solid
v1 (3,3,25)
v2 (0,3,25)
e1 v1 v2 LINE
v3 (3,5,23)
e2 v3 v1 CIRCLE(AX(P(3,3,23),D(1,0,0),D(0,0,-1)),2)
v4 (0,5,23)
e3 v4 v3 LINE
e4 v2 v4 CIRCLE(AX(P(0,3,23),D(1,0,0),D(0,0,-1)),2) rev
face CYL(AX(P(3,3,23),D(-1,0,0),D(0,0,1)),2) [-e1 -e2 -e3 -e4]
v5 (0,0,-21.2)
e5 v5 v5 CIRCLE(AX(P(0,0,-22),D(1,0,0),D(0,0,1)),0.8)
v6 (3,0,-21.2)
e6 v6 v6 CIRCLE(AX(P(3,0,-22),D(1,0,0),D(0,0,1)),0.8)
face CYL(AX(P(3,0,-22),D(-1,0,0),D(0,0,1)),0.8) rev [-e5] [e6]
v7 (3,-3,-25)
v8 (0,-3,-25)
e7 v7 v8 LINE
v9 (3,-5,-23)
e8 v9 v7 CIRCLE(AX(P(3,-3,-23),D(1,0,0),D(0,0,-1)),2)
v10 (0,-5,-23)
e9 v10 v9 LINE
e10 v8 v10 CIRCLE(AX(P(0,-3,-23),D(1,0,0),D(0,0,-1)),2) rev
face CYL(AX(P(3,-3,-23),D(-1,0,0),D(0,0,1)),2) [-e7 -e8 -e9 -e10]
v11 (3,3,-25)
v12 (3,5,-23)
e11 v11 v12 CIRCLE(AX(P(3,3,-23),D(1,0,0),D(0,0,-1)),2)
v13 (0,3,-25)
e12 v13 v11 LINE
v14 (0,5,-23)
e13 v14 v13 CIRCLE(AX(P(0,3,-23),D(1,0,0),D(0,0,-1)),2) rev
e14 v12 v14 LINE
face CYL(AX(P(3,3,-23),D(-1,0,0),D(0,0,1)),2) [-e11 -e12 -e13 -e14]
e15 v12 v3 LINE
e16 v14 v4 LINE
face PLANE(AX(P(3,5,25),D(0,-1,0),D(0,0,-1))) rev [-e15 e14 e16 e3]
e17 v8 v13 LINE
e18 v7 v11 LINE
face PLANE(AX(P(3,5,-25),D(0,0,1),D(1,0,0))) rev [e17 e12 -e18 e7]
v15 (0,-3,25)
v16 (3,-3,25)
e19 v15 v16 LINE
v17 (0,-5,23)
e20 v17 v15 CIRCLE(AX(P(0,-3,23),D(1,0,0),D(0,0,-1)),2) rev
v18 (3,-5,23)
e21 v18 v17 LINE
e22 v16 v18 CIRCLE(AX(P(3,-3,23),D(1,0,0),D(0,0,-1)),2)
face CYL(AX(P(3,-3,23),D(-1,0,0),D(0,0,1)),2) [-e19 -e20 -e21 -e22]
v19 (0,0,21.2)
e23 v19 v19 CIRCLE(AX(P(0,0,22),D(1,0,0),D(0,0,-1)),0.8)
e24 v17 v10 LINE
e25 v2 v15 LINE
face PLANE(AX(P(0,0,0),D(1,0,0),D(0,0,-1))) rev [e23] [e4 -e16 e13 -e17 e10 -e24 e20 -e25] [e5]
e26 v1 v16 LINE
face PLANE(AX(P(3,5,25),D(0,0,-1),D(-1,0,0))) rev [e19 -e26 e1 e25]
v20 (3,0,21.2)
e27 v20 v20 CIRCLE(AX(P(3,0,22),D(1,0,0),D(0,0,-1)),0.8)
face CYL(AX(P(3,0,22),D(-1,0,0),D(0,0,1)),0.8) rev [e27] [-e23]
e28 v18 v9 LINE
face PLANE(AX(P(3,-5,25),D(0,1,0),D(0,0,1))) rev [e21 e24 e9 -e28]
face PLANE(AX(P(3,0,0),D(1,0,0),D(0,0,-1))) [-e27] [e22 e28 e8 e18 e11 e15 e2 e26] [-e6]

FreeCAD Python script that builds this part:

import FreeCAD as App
import Part
import Sketcher
Q = App.Units.Quantity


def edges_at(feature, points):
    """Names of the edges that pass closest to the given points."""
    edges = feature.Shape.Edges
    near = lambda p: min(range(len(edges)), key=lambda i: edges[i].distToShape(Part.Vertex(*p))[0])
    return sorted({f"Edge{near(p) + 1}" for p in points})


def add_polygon(sketch, points):
    """Adds a closed chain of lines whose ends are joined by coincident constraints."""
    first, n = sketch.GeometryCount, len(points)
    for a, b in zip(points, points[1:] + points[:1]):
        sketch.addGeometry(Part.LineSegment(App.Vector(*a, 0), App.Vector(*b, 0)), False)
    for i in range(n):
        sketch.addConstraint(Sketcher.Constraint("Coincident", first + i, 2, first + (i + 1) % n, 1))

doc = App.newDocument("Part")
body = doc.addObject("PartDesign::Body", "Body")

sketch1 = doc.addObject("Sketcher::SketchObject", "Sketch")
body.addObject(sketch1)
sketch1.AttachmentSupport = (doc.YZ_Plane, [""])
sketch1.MapMode = "FlatFace"
add_polygon(sketch1, [(5, 25), (-5, 25), (-5, -25), (5, -25)])
sketch1.addGeometry(Part.Circle(App.Vector(0, 22, 0), App.Vector(0, 0, 1), 0.8), False)
sketch1.addGeometry(Part.Circle(App.Vector(0, -22, 0), App.Vector(0, 0, 1), 0.8), False)
sketch1.addConstraint(Sketcher.Constraint("Horizontal", 0))
sketch1.addConstraint(Sketcher.Constraint("Vertical", 1))
sketch1.addConstraint(Sketcher.Constraint("Horizontal", 2))
sketch1.addConstraint(Sketcher.Constraint("Vertical", 3))
sketch1.addConstraint(Sketcher.Constraint("Equal", 4, 5))
sketch1.addConstraint(Sketcher.Constraint("Symmetric", 4, 3, 5, 3, -1, 1))
sketch1.addConstraint(Sketcher.Constraint("Symmetric", 0, 2, 2, 2, -1, 1))
sketch1.addConstraint(Sketcher.Constraint("PointOnObject", 4, 3, -2))
sketch1.addConstraint(Sketcher.Constraint("Diameter", 4, Q("1.6 mm")))
sketch1.addConstraint(Sketcher.Constraint("DistanceX", 0, 2, 0, 1, Q("10 mm")))
sketch1.addConstraint(Sketcher.Constraint("DistanceY", 1, 2, 1, 1, Q("50 mm")))
sketch1.addConstraint(Sketcher.Constraint("DistanceY", -1, 1, 4, 3, Q("22 mm")))
pad1 = doc.addObject("PartDesign::Pad", "Pad")
body.addObject(pad1)
pad1.Profile = sketch1
pad1.Length = 3
doc.recompute()

fillet = doc.addObject("PartDesign::Fillet", "Fillet")
body.addObject(fillet)
fillet.Base = (pad1, edges_at(pad1, [
    (1.5, -5, -25),
    (1.5, -5, 25),
    (1.5, 5, 25),
    (1.5, 5, -25),
]))
fillet.Radius = 2

doc.recompute()
